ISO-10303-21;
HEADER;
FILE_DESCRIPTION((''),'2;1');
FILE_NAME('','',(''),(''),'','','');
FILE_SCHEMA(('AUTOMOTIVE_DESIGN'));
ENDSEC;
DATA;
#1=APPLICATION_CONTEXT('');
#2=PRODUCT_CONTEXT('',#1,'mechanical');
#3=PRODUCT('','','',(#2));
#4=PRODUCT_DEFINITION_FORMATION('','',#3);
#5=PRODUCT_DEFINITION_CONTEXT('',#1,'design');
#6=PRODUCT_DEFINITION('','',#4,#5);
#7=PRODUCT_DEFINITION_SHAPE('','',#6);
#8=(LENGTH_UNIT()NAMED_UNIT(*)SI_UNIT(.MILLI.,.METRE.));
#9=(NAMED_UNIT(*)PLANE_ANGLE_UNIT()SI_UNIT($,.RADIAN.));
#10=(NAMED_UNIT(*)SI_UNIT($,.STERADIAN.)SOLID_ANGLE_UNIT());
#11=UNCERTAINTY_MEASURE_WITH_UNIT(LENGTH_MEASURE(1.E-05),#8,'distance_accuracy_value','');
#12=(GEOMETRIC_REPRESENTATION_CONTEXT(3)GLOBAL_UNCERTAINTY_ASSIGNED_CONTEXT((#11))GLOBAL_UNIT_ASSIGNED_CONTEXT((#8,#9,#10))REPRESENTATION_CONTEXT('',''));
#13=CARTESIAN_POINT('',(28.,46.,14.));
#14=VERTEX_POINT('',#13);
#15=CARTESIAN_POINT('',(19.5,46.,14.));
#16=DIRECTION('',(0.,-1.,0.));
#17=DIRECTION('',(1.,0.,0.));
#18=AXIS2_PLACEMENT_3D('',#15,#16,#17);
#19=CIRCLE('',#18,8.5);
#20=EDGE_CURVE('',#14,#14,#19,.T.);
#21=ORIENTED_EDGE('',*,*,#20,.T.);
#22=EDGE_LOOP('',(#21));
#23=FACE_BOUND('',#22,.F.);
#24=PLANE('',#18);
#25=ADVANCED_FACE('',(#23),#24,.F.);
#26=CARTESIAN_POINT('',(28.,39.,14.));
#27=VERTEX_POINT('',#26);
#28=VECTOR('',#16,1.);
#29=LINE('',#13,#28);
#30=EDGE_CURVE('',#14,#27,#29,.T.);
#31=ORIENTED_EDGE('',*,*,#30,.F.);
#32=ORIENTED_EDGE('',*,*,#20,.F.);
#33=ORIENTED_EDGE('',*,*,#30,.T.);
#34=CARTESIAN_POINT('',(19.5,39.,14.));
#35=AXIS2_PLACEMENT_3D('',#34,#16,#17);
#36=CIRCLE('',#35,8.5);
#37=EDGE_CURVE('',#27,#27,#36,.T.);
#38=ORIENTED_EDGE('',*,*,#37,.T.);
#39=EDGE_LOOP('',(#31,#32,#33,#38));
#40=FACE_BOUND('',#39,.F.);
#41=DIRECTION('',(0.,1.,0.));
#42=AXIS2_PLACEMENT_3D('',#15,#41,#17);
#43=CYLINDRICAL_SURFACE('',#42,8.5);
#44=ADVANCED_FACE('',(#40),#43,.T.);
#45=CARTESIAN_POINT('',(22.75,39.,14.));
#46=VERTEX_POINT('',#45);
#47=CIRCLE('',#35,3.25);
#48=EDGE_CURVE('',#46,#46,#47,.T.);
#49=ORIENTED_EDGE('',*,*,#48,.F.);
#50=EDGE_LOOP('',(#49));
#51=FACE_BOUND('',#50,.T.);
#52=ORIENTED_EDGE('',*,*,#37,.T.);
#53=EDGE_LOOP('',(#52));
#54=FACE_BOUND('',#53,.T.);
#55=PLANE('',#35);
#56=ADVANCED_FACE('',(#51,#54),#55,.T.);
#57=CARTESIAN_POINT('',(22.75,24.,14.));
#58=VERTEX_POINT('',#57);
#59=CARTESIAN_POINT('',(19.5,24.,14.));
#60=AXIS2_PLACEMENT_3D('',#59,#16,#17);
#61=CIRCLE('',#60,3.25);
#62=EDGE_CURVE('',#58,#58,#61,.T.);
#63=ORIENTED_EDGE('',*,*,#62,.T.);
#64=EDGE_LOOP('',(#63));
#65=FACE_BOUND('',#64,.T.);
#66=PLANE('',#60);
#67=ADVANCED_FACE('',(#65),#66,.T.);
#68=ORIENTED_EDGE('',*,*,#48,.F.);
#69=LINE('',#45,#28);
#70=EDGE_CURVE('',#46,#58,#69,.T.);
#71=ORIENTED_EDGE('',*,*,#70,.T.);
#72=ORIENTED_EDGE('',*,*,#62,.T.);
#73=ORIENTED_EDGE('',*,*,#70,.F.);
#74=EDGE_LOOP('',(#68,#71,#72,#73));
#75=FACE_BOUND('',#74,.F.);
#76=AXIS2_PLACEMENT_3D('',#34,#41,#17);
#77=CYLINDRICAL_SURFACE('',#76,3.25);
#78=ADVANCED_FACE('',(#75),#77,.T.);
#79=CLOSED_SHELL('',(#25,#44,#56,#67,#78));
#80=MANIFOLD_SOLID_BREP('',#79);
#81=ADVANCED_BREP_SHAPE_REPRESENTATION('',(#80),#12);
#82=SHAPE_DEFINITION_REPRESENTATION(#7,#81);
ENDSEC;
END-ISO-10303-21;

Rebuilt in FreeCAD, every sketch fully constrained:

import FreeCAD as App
import Part
import Sketcher

V = App.Vector

doc = App.newDocument("Part")
body = doc.addObject("PartDesign::Body", "Body")

# Sketch on XZ plane
sketch1 = body.newObject("Sketcher::SketchObject", "Sketch")
sketch1.AttachmentSupport = (doc.getObject("XZ_Plane"), [""])
sketch1.MapMode = "FlatFace"
sketch1.AttachmentOffset = App.Placement(V(0, 0, -46), App.Rotation())
sketch1.addGeometry(Part.Circle(V(20, 14, 0), V(0, 0, 1), 8), False)
sketch1.addConstraint(Sketcher.Constraint("Diameter", 0, 17.0))
sketch1.addConstraint(Sketcher.Constraint("DistanceY", -1, 1, 0, 3, 14.0))
sketch1.addConstraint(Sketcher.Constraint("DistanceX", -1, 1, 0, 3, 19.5))
pad1 = body.newObject("PartDesign::Pad", "Pad")
pad1.Profile = sketch1
pad1.Length = 7
body2 = doc.addObject("PartDesign::Body", "Body001")

# Sketch on XZ plane
sketch2 = body2.newObject("Sketcher::SketchObject", "Sketch001")
sketch2.AttachmentSupport = (doc.getObject("XZ_Plane001"), [""])
sketch2.MapMode = "FlatFace"
sketch2.AttachmentOffset = App.Placement(V(0, 0, -39), App.Rotation())
sketch2.addGeometry(Part.Circle(V(19.5, 14, 0), V(0, 0, 1), 3.2), False)
sketch2.addConstraint(Sketcher.Constraint("Diameter", 0, 6.5))
sketch2.addConstraint(Sketcher.Constraint("DistanceY", -1, 1, 0, 3, 14.0))
sketch2.addConstraint(Sketcher.Constraint("DistanceX", -1, 1, 0, 3, 19.5))
pad2 = body2.newObject("PartDesign::Pad", "Pad001")
pad2.Profile = sketch2
pad2.Length = 15
doc.recompute()

boolean = body2.newObject("PartDesign::Boolean", "Boolean")
boolean.Type = "Fuse"
boolean.addObjects([body])

doc.recompute()
